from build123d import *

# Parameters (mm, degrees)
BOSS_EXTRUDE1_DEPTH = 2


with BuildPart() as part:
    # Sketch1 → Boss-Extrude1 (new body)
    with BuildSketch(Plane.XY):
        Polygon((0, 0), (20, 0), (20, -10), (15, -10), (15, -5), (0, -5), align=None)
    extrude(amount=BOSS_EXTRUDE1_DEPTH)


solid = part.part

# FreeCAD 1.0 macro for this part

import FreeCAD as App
import Part
import Sketcher
Q = App.Units.Quantity

doc = App.newDocument("Part")
body = doc.addObject("PartDesign::Body", "Body")

# Sketch on XY plane
sketch1 = body.newObject("Sketcher::SketchObject", "Sketch")
sketch1.AttachmentSupport = (doc.getObject("XY_Plane"), [""])
sketch1.MapMode = "FlatFace"
sketch1.addGeometry([
    Part.LineSegment(App.Vector(20, 0, 0), App.Vector(0, 0, 0)),  # 0
    Part.LineSegment(App.Vector(0, 0, 0), App.Vector(0, -5, 0)),  # 1
    Part.LineSegment(App.Vector(0, -5, 0), App.Vector(15, -5, 0)),  # 2
    Part.LineSegment(App.Vector(15, -5, 0), App.Vector(15, -10, 0)),  # 3
    Part.LineSegment(App.Vector(15, -10, 0), App.Vector(20, -10, 0)),  # 4
    Part.LineSegment(App.Vector(20, -10, 0), App.Vector(20, 0, 0)),  # 5
], False)
sketch1.addConstraint([
    Sketcher.Constraint("Coincident", 0, 2, 1, 1),
    Sketcher.Constraint("Coincident", 1, 2, 2, 1),
    Sketcher.Constraint("Coincident", 2, 2, 3, 1),
    Sketcher.Constraint("Coincident", 3, 2, 4, 1),
    Sketcher.Constraint("Coincident", 4, 2, 5, 1),
    Sketcher.Constraint("Coincident", 5, 2, 0, 1),
    Sketcher.Constraint("Horizontal", 0),
    Sketcher.Constraint("Vertical", 1),
    Sketcher.Constraint("Horizontal", 2),
    Sketcher.Constraint("Vertical", 3),
    Sketcher.Constraint("Horizontal", 4),
    Sketcher.Constraint("Vertical", 5),
    Sketcher.Constraint("Coincident", 0, 2, -1, 1),
    Sketcher.Constraint("Equal", 4, 1),
    Sketcher.Constraint("Equal", 1, 3),
    Sketcher.Constraint("DistanceX", 0, 2, 0, 1, Q("20 mm")),
    Sketcher.Constraint("DistanceX", 2, 1, 2, 2, Q("15 mm")),
])
pad1 = body.newObject("PartDesign::Pad", "Pad")
pad1.Profile = sketch1
pad1.Length = 2

doc.recompute()
